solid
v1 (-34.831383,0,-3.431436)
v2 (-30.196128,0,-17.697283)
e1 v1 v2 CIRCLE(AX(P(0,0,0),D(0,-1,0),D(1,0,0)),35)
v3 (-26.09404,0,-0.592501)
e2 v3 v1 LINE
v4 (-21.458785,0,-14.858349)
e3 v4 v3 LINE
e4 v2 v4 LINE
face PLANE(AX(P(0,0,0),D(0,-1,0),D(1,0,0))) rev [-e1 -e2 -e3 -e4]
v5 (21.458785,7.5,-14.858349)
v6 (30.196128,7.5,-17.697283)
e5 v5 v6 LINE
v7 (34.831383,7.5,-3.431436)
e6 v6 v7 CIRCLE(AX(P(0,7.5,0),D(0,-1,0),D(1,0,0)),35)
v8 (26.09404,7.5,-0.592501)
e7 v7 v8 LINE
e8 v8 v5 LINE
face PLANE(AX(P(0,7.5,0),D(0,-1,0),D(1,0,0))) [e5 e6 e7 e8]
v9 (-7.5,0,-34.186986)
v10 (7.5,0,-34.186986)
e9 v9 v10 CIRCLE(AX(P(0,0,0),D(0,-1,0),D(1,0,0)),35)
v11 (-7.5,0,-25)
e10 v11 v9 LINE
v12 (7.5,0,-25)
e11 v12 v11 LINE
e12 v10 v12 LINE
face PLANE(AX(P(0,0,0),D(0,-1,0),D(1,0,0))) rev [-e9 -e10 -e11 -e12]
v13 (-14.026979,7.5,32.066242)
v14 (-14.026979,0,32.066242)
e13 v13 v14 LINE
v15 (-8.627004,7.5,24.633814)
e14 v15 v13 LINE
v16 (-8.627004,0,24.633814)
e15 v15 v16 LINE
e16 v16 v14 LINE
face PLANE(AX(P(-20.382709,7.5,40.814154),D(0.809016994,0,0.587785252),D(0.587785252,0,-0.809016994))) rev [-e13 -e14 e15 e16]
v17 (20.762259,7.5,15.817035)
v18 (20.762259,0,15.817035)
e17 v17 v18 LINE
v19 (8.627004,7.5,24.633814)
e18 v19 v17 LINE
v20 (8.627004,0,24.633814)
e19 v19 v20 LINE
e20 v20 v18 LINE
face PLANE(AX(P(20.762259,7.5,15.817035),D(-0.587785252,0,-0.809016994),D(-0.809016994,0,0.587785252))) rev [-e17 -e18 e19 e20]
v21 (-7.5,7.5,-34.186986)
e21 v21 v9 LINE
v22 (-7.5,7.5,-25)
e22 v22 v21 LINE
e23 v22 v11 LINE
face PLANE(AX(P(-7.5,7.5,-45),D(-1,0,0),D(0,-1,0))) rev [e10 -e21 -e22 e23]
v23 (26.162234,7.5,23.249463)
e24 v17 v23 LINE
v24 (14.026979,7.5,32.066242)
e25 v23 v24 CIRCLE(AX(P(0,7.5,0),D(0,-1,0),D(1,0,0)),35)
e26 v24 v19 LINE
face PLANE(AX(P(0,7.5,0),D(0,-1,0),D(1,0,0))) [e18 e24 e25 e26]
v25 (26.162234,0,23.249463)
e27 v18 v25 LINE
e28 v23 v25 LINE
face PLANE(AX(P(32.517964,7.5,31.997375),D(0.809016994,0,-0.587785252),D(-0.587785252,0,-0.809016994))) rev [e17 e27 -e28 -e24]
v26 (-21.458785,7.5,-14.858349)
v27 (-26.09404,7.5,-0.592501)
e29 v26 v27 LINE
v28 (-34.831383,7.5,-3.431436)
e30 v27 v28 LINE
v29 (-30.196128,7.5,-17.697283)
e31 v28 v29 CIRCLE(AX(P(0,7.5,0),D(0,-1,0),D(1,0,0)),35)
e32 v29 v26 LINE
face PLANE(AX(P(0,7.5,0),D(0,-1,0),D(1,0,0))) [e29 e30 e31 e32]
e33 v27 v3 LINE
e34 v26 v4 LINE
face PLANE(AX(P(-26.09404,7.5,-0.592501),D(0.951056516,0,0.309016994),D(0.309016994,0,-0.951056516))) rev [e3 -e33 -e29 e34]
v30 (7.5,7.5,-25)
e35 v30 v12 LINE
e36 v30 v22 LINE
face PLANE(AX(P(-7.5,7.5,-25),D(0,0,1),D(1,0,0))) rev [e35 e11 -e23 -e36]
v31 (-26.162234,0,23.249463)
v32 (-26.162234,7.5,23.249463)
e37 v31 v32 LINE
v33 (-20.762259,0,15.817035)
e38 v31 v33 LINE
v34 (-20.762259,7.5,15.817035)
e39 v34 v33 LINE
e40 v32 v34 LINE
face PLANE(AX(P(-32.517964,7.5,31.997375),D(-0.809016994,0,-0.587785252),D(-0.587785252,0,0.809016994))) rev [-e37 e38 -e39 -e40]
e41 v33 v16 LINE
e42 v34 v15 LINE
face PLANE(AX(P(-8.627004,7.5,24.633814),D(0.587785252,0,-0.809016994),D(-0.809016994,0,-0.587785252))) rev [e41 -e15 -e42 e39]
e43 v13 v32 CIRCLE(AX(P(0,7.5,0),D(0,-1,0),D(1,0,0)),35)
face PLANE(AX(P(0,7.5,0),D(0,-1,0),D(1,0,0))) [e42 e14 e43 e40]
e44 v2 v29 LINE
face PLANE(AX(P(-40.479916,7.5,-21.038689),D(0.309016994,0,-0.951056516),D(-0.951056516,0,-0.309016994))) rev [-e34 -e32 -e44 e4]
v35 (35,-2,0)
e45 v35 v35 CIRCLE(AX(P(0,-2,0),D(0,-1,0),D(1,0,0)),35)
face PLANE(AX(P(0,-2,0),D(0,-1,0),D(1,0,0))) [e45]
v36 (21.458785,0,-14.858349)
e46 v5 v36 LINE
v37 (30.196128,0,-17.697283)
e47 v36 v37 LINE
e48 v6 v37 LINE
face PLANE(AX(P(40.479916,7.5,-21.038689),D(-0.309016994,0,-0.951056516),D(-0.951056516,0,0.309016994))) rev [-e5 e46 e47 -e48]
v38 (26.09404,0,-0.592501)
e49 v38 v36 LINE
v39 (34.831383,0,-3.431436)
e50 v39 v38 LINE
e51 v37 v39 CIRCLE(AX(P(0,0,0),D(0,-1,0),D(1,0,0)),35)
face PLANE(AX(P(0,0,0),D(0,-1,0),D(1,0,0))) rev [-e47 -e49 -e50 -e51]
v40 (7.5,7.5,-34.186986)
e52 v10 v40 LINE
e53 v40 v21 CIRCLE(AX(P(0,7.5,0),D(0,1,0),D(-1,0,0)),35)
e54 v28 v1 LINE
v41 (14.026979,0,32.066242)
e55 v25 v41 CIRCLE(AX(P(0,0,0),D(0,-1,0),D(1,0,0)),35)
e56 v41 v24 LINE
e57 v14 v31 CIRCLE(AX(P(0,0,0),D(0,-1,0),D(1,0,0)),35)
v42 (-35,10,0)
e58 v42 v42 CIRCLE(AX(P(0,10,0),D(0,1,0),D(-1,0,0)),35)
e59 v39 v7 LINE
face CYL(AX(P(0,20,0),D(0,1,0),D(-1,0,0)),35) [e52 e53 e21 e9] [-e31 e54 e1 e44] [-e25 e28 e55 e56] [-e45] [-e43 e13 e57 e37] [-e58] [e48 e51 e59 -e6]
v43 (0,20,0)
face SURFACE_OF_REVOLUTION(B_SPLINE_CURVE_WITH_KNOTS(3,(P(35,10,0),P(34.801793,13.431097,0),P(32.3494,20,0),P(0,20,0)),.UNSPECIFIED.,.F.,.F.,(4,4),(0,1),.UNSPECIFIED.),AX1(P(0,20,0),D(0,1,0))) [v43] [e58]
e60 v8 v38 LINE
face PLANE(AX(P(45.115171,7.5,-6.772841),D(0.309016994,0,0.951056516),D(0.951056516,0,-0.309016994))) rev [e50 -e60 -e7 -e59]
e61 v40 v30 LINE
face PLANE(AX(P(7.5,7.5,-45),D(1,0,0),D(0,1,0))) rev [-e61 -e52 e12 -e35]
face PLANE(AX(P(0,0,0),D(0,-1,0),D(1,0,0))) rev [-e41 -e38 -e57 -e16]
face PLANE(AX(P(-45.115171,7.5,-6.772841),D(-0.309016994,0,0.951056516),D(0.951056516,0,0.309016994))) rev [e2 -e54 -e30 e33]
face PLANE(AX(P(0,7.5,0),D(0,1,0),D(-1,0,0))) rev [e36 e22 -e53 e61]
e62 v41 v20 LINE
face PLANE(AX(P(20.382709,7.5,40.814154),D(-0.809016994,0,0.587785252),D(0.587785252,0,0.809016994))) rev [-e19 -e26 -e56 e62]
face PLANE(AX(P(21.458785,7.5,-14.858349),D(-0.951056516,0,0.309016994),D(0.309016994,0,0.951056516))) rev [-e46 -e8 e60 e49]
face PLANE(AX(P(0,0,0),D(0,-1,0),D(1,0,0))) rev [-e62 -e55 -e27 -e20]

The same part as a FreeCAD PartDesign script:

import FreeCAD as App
import Part
import Sketcher
Q = App.Units.Quantity


def add_polygon(sketch, points):
    """Adds a closed chain of lines whose ends are joined by coincident constraints."""
    first, n = sketch.GeometryCount, len(points)
    for a, b in zip(points, points[1:] + points[:1]):
        sketch.addGeometry(Part.LineSegment(App.Vector(*a, 0), App.Vector(*b, 0)), False)
    for i in range(n):
        sketch.addConstraint(Sketcher.Constraint("Coincident", first + i, 2, first + (i + 1) % n, 1))

doc = App.newDocument("Part")
params = doc.addObject("Spreadsheet::Sheet", "Params")
for row, (alias, value) in enumerate([
    ("revolution_angle", "360 deg"),
    ("sketch2_width", "15 mm"),
    ("sketch2_height", "20 mm"),
    ("sketch2_length", "20 mm"),
    ("sketch2_length2", "15 mm"),
    ("pocket1_length", "7.5 mm"),
    ("sketch3_diameter", "70 mm"),
    ("pad1_length", "2 mm"),
], start=1):
    params.set(f"A{row}", alias)
    params.set(f"B{row}", "=" + value)
    params.setAlias(f"B{row}", alias)

body = doc.addObject("PartDesign::Body", "Body")

sketch1 = body.newObject("Sketcher::SketchObject", "Sketch")
sketch1.AttachmentSupport = (doc.getObject("XY_Plane"), [""])
sketch1.MapMode = "FlatFace"
sketch1.addGeometry([
    Part.LineSegment(App.Vector(0, 20, 0), App.Vector(0, 0, 0)),
    Part.LineSegment(App.Vector(0, 0, 0), App.Vector(35, 0, 0)),
    Part.LineSegment(App.Vector(35, 0, 0), App.Vector(35, 10, 0)),
    Part.BSplineCurve([App.Vector(0, 20, 0), App.Vector(32.3494, 20, 0), App.Vector(34.801793, 13.431097, 0), App.Vector(35, 10, 0)], [4, 4], [0, 1], False, 3, [1, 1, 1, 1], False),
], False)
sketch1.addConstraint([
    Sketcher.Constraint("Block", 3),
    Sketcher.Constraint("Coincident", 0, 2, 1, 1),
    Sketcher.Constraint("Coincident", 1, 2, 2, 1),
    Sketcher.Constraint("Coincident", 2, 2, 3, 2),
    Sketcher.Constraint("Coincident", 3, 1, 0, 1),
    Sketcher.Constraint("Vertical", 0),
    Sketcher.Constraint("Horizontal", 1),
    Sketcher.Constraint("Vertical", 2),
    Sketcher.Constraint("PointOnObject", 1, 2, -1),
])
revolution = body.newObject("PartDesign::Revolution", "Revolution")
revolution.Profile = sketch1
revolution.ReferenceAxis = (sketch1, ["V_Axis"])
revolution.setExpression("Angle", "Params.revolution_angle")

sketch2 = body.newObject("Sketcher::SketchObject", "Sketch001")
sketch2.AttachmentSupport = (doc.getObject("XZ_Plane"), [""])
sketch2.MapMode = "FlatFace"
add_polygon(sketch2, [(-7.5, -25), (-7.5, -45), (7.5, -45), (7.5, -25)])
add_polygon(sketch2, [(-26.09404, -0.592501), (-45.115171, -6.772841), (-40.479916, -21.038689), (-21.458785, -14.858349)])
add_polygon(sketch2, [(-8.627004, 24.633814), (-20.382709, 40.814154), (-32.517964, 31.997375), (-20.762259, 15.817035)])
add_polygon(sketch2, [(20.762259, 15.817035), (32.517964, 31.997375), (20.382709, 40.814154), (8.627004, 24.633814)])
add_polygon(sketch2, [(21.458785, -14.858349), (40.479916, -21.038689), (45.115171, -6.772841), (26.09404, -0.592501)])
sketch2.addConstraint([
    Sketcher.Constraint("Vertical", 0),
    Sketcher.Constraint("Horizontal", 1),
    Sketcher.Constraint("Vertical", 2),
    Sketcher.Constraint("Horizontal", 3),
    Sketcher.Constraint("Symmetric", 9, 2, 12, 2, -2),
    Sketcher.Constraint("Symmetric", 8, 2, 13, 2, -2),
    Sketcher.Constraint("Symmetric", 11, 2, 14, 2, -2),
    Sketcher.Constraint("Symmetric", 10, 2, 15, 2, -2),
    Sketcher.Constraint("Symmetric", 5, 2, 16, 2, -2),
    Sketcher.Constraint("Symmetric", 4, 2, 17, 2, -2),
    Sketcher.Constraint("Symmetric", 7, 2, 18, 2, -2),
    Sketcher.Constraint("Symmetric", 6, 2, 19, 2, -2),
    Sketcher.Constraint("Perpendicular", 4, 5),
    Sketcher.Constraint("Perpendicular", 5, 6),
    Sketcher.Constraint("Perpendicular", 6, 7),
    Sketcher.Constraint("Perpendicular", 8, 9),
    Sketcher.Constraint("Perpendicular", 9, 10),
    Sketcher.Constraint("Perpendicular", 10, 11),
    Sketcher.Constraint("Equal", 6, 8),
    Sketcher.Constraint("Equal", 7, 9),
    Sketcher.Constraint("DistanceX", 1, 1, 1, 2, 15.0),
    Sketcher.Constraint("DistanceY", 0, 2, 0, 1, 20.0),
    Sketcher.Constraint("Angle", 4, Q("-162 deg")),
    Sketcher.Constraint("Angle", 8, Q("126 deg")),
    Sketcher.Constraint("Distance", 4, 20.0),
    Sketcher.Constraint("Distance", 5, 15.0),
    Sketcher.Constraint("DistanceY", 0, 2, -1, 1, 45.0),
    Sketcher.Constraint("DistanceX", 0, 2, -1, 1, 7.5),
    Sketcher.Constraint("DistanceY", 7, 2, -1, 1, 0.592501),
    Sketcher.Constraint("DistanceX", 4, 2, -1, 1, 45.115171),
    Sketcher.Constraint("DistanceX", 8, 2, -1, 1, 20.382709),
    Sketcher.Constraint("DistanceY", -1, 1, 8, 2, 40.814154),
])
sketch2.setExpression("Constraints[40]", "Params.sketch2_width")
sketch2.setExpression("Constraints[41]", "Params.sketch2_height")
sketch2.setExpression("Constraints[44]", "Params.sketch2_length")
sketch2.setExpression("Constraints[45]", "Params.sketch2_length2")
pocket1 = body.newObject("PartDesign::Pocket", "Pocket")
pocket1.Profile = sketch2
pocket1.setExpression("Length", "Params.pocket1_length")

sketch3 = body.newObject("Sketcher::SketchObject", "Sketch002")
sketch3.AttachmentSupport = (doc.getObject("XZ_Plane"), [""])
sketch3.MapMode = "FlatFace"
sketch3.addGeometry(Part.Circle(App.Vector(0, 0, 0), App.Vector(0, 0, 1), 35), False)
sketch3.addConstraint([
    Sketcher.Constraint("Coincident", 0, 3, -1, 1),
    Sketcher.Constraint("Diameter", 0, 70.0),
])
sketch3.setExpression("Constraints[1]", "Params.sketch3_diameter")
pad1 = body.newObject("PartDesign::Pad", "Pad")
pad1.Profile = sketch3
pad1.setExpression("Length", "Params.pad1_length")

doc.recompute()
